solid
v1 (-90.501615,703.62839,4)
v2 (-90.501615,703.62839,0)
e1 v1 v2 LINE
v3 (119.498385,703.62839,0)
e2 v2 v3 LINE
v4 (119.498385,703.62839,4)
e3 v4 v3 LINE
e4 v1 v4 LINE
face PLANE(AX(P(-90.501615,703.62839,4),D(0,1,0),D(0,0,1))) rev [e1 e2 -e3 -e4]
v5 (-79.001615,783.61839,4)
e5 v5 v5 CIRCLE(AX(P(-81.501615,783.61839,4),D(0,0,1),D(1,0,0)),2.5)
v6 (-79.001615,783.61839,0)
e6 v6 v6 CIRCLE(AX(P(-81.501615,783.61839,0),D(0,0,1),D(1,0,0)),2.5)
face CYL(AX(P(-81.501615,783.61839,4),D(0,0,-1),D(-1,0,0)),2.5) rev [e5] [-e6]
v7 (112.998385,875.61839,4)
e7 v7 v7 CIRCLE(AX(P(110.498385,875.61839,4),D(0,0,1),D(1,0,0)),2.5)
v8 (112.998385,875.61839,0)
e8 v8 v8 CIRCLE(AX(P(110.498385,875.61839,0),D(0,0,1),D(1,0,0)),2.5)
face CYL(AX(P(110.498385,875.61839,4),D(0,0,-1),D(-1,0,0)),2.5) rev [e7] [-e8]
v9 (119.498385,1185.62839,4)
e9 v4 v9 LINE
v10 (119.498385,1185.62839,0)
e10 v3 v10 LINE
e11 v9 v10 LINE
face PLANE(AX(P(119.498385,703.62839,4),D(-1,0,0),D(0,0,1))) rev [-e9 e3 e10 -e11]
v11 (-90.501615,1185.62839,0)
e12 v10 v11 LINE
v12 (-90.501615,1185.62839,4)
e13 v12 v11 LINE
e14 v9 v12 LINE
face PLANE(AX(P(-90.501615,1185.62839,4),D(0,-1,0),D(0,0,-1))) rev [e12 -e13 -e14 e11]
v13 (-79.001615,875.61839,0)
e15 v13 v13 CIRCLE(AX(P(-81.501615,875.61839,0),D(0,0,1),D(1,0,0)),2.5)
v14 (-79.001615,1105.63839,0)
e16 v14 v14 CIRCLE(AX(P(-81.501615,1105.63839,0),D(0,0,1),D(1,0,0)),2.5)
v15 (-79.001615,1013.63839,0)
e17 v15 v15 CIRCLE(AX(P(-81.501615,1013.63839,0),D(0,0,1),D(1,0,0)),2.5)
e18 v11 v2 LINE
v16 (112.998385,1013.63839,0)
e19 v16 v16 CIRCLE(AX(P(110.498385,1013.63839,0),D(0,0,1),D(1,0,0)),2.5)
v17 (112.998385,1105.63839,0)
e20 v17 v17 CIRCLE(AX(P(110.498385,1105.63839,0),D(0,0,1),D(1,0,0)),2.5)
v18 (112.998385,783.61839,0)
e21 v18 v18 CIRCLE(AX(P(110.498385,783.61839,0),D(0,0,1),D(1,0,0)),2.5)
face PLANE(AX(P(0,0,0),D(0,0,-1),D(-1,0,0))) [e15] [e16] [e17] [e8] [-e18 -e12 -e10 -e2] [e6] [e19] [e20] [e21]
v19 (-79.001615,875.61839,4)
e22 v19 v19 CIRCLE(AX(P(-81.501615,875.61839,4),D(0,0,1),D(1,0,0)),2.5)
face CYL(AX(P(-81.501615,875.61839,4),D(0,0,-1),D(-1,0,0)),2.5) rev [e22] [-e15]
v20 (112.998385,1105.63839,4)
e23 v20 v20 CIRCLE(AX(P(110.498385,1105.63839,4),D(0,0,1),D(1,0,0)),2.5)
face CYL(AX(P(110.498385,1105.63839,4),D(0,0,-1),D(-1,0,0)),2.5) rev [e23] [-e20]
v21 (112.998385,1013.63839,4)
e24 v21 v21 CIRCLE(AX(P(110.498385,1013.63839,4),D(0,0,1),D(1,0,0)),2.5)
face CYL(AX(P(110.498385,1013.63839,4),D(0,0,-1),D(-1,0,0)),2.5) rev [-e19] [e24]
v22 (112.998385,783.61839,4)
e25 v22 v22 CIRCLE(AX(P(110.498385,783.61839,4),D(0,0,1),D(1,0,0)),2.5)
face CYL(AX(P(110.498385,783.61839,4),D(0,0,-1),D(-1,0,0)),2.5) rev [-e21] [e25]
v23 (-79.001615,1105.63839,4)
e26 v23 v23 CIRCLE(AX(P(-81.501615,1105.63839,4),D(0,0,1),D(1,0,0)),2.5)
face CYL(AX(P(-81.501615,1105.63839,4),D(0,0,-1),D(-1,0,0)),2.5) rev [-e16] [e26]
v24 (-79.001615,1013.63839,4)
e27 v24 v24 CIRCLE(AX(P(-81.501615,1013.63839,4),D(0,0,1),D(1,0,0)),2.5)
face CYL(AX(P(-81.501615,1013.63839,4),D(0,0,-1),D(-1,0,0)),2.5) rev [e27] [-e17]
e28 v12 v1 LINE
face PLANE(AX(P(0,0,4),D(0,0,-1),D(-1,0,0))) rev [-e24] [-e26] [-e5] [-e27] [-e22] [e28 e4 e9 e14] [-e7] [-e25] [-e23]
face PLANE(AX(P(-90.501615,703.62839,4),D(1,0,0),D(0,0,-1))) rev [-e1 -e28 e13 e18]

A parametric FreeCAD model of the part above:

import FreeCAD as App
import Part
import Sketcher
Q = App.Units.Quantity


def add_polygon(sketch, points):
    """Adds a closed chain of lines whose ends are joined by coincident constraints."""
    first, n = sketch.GeometryCount, len(points)
    for a, b in zip(points, points[1:] + points[:1]):
        sketch.addGeometry(Part.LineSegment(App.Vector(*a, 0), App.Vector(*b, 0)), False)
    for i in range(n):
        sketch.addConstraint(Sketcher.Constraint("Coincident", first + i, 2, first + (i + 1) % n, 1))

doc = App.newDocument("Part")
body = doc.addObject("PartDesign::Body", "Body")

sketch1 = body.newObject("Sketcher::SketchObject", "Sketch")
sketch1.AttachmentSupport = (doc.getObject("XY_Plane"), [""])
sketch1.MapMode = "FlatFace"
add_polygon(sketch1, [(-90.5, 1185.6), (-90.5, 703.6), (119.5, 703.6), (119.5, 1185.6)])
sketch1.addGeometry(Part.Circle(App.Vector(-81.5, 783.6, 0), App.Vector(0, 0, 1), 2.5), False)
sketch1.addGeometry(Part.Circle(App.Vector(-81.5, 875.6, 0), App.Vector(0, 0, 1), 2.5), False)
sketch1.addGeometry(Part.Circle(App.Vector(110.5, 783.6, 0), App.Vector(0, 0, 1), 2.5), False)
sketch1.addGeometry(Part.Circle(App.Vector(110.5, 875.6, 0), App.Vector(0, 0, 1), 2.5), False)
sketch1.addGeometry(Part.Circle(App.Vector(-81.5, 1013.6, 0), App.Vector(0, 0, 1), 2.5), False)
sketch1.addGeometry(Part.Circle(App.Vector(-81.5, 1105.6, 0), App.Vector(0, 0, 1), 2.5), False)
sketch1.addGeometry(Part.Circle(App.Vector(110.5, 1013.6, 0), App.Vector(0, 0, 1), 2.5), False)
sketch1.addGeometry(Part.Circle(App.Vector(110.5, 1105.6, 0), App.Vector(0, 0, 1), 2.5), False)
sketch1.addConstraint([
    Sketcher.Constraint("Vertical", 0),
    Sketcher.Constraint("Horizontal", 1),
    Sketcher.Constraint("Vertical", 2),
    Sketcher.Constraint("Horizontal", 3),
    Sketcher.Constraint("Equal", 4, 5),
    Sketcher.Constraint("Equal", 5, 6),
    Sketcher.Constraint("Equal", 6, 7),
    Sketcher.Constraint("Equal", 7, 8),
    Sketcher.Constraint("Equal", 8, 9),
    Sketcher.Constraint("Equal", 9, 10),
    Sketcher.Constraint("Equal", 10, 11),
    Sketcher.Constraint("Horizontal", 4, 3, 6, 3),
    Sketcher.Constraint("Horizontal", 5, 3, 7, 3),
    Sketcher.Constraint("Horizontal", 8, 3, 10, 3),
    Sketcher.Constraint("Horizontal", 9, 3, 11, 3),
    Sketcher.Constraint("Vertical", 4, 3, 5, 3),
    Sketcher.Constraint("Vertical", 6, 3, 7, 3),
    Sketcher.Constraint("Vertical", 5, 3, 8, 3),
    Sketcher.Constraint("Vertical", 8, 3, 9, 3),
    Sketcher.Constraint("Vertical", 7, 3, 10, 3),
    Sketcher.Constraint("Vertical", 10, 3, 11, 3),
    Sketcher.Constraint("Diameter", 4, Q("5 mm")),
    Sketcher.Constraint("DistanceX", 1, 1, 1, 2, Q("210 mm")),
    Sketcher.Constraint("DistanceY", 0, 2, 0, 1, Q("482 mm")),
    Sketcher.Constraint("DistanceY", 4, 3, 5, 3, Q("92 mm")),
    Sketcher.Constraint("DistanceX", 4, 3, 6, 3, Q("192 mm")),
    Sketcher.Constraint("DistanceY", 8, 3, 9, 3, Q("92 mm")),
    Sketcher.Constraint("DistanceX", 0, 2, 4, 3, Q("9 mm")),
    Sketcher.Constraint("DistanceY", 5, 3, 8, 3, Q("138.02 mm")),
    Sketcher.Constraint("DistanceY", 0, 2, 4, 3, Q("79.99 mm")),
    Sketcher.Constraint("DistanceY", -1, 1, 4, 3, Q("783.61839 mm")),
    Sketcher.Constraint("DistanceX", 4, 3, -1, 1, Q("81.501615 mm")),
])
pad1 = body.newObject("PartDesign::Pad", "Pad")
pad1.Profile = sketch1
pad1.Length = 4

doc.recompute()
